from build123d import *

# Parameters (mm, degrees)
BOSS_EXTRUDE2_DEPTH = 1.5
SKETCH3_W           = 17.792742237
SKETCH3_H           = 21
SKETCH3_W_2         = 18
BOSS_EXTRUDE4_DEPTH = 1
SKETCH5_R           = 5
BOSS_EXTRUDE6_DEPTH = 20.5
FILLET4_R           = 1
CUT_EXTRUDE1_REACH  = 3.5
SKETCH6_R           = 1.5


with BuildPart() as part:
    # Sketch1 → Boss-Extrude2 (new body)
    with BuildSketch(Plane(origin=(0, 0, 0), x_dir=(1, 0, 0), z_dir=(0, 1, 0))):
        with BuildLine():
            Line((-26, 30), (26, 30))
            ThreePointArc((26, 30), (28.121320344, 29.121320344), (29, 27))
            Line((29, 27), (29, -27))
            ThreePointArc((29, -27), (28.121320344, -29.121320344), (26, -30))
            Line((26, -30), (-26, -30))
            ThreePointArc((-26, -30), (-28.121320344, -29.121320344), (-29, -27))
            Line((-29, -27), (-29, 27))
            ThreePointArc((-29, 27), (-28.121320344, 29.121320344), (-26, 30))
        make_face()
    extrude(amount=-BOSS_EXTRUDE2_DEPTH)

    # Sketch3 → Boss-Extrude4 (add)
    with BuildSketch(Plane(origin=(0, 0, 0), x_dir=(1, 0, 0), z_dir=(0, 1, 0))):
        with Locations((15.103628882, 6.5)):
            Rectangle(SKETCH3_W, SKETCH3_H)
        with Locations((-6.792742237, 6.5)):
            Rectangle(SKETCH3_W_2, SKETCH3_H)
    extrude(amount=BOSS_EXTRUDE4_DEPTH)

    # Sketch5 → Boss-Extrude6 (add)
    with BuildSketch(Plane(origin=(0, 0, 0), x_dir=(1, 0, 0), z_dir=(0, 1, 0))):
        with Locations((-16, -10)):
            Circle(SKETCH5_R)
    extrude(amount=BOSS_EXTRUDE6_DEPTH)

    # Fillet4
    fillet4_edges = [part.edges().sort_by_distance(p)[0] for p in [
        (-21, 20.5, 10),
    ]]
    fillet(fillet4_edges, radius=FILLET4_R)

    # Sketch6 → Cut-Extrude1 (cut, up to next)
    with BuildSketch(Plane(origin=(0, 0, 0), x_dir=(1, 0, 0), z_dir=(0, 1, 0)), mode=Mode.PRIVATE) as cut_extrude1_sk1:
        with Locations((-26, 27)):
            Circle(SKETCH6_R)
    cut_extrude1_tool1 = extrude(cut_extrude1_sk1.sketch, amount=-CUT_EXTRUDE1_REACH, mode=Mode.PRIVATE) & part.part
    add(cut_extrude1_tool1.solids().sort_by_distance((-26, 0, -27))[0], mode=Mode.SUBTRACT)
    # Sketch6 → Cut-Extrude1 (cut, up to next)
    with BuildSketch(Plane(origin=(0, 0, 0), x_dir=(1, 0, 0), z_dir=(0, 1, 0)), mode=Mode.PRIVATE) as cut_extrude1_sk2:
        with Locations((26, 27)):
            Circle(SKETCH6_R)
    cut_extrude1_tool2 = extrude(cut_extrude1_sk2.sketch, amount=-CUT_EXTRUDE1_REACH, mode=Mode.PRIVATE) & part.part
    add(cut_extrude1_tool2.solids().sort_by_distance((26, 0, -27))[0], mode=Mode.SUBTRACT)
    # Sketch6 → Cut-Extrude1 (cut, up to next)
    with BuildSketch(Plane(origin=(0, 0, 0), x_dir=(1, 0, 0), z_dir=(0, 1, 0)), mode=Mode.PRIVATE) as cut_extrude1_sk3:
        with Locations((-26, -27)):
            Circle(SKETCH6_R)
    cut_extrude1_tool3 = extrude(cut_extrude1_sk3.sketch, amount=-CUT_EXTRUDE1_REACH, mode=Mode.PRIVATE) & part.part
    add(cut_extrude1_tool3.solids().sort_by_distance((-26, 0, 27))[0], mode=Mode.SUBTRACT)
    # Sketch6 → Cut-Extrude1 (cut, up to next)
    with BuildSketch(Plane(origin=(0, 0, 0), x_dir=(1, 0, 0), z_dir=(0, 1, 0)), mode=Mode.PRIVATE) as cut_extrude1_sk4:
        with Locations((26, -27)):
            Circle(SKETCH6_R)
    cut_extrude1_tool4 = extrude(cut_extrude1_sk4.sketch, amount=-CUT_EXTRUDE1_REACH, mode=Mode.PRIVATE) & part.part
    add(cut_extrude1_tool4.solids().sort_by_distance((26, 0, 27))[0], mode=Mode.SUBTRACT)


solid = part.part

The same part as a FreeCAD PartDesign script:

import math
import FreeCAD as App
import Part
import Sketcher

V = App.Vector
Q = App.Units.Quantity


def edges_at(feature, points):
    """Names of the edges that pass closest to the given points."""
    edges = feature.Shape.Edges
    near = lambda p: min(range(len(edges)), key=lambda i: edges[i].distToShape(Part.Vertex(*p))[0])
    return sorted({f"Edge{near(p) + 1}" for p in points})

doc = App.newDocument("Part")
body = doc.addObject("PartDesign::Body", "Body")

sketch1 = body.newObject("Sketcher::SketchObject", "Sketch")
sketch1.AttachmentSupport = (doc.getObject("XZ_Plane"), [""])
sketch1.MapMode = "FlatFace"
sketch1.addGeometry([
    Part.LineSegment(V(26, -30, 0), V(-26, -30, 0)),
    Part.ArcOfCircle(Part.Circle(V(-26, -27, 0), V(0, 0, 1), 3), math.radians(180), math.radians(270)),
    Part.LineSegment(V(-29, -27, 0), V(-29, 27, 0)),
    Part.ArcOfCircle(Part.Circle(V(-26, 27, 0), V(0, 0, 1), 3), math.radians(90), math.radians(180)),
    Part.LineSegment(V(-26, 30, 0), V(26, 30, 0)),
    Part.ArcOfCircle(Part.Circle(V(26, 27, 0), V(0, 0, 1), 3), math.radians(0), math.radians(90)),
    Part.LineSegment(V(29, 27, 0), V(29, -27, 0)),
    Part.ArcOfCircle(Part.Circle(V(26, -27, 0), V(0, 0, 1), 3), math.radians(-90), math.radians(0)),
], False)
sketch1.addConstraint([
    Sketcher.Constraint("Tangent", 0, 2, 1, 2),
    Sketcher.Constraint("Tangent", 1, 1, 2, 1),
    Sketcher.Constraint("Tangent", 2, 2, 3, 2),
    Sketcher.Constraint("Tangent", 3, 1, 4, 1),
    Sketcher.Constraint("Tangent", 4, 2, 5, 2),
    Sketcher.Constraint("Tangent", 5, 1, 6, 1),
    Sketcher.Constraint("Tangent", 6, 2, 7, 2),
    Sketcher.Constraint("Tangent", 7, 1, 0, 1),
    Sketcher.Constraint("Horizontal", 0),
    Sketcher.Constraint("Vertical", 2),
    Sketcher.Constraint("Horizontal", 4),
    Sketcher.Constraint("Vertical", 6),
    Sketcher.Constraint("Equal", 1, 3),
    Sketcher.Constraint("Equal", 3, 5),
    Sketcher.Constraint("Equal", 5, 7),
    Sketcher.Constraint("Symmetric", 1, 3, 5, 3, -1, 1),
    Sketcher.Constraint("Radius", 1, Q("3 mm")),
    Sketcher.Constraint("DistanceX", 0, 2, 0, 1, Q("52 mm")),
    Sketcher.Constraint("DistanceY", 2, 1, 2, 2, Q("54 mm")),
])
pad1 = body.newObject("PartDesign::Pad", "Pad")
pad1.Profile = sketch1
pad1.Length = 1.5

sketch2 = body.newObject("Sketcher::SketchObject", "Sketch001")
sketch2.AttachmentSupport = (doc.getObject("XZ_Plane"), [""])
sketch2.MapMode = "FlatFace"
sketch2.addGeometry([
    Part.LineSegment(V(6.207258, -17, 0), V(6.207258, 4, 0)),
    Part.LineSegment(V(6.207258, 4, 0), V(24, 4, 0)),
    Part.LineSegment(V(24, 4, 0), V(24, -17, 0)),
    Part.LineSegment(V(24, -17, 0), V(6.207258, -17, 0)),
    Part.LineSegment(V(-15.792742, -17, 0), V(-15.792742, 4, 0)),
    Part.LineSegment(V(-15.792742, 4, 0), V(2.207258, 4, 0)),
    Part.LineSegment(V(2.207258, 4, 0), V(2.207258, -17, 0)),
    Part.LineSegment(V(2.207258, -17, 0), V(-15.792742, -17, 0)),
], False)
sketch2.addConstraint([
    Sketcher.Constraint("Coincident", 0, 2, 1, 1),
    Sketcher.Constraint("Coincident", 1, 2, 2, 1),
    Sketcher.Constraint("Coincident", 2, 2, 3, 1),
    Sketcher.Constraint("Coincident", 3, 2, 0, 1),
    Sketcher.Constraint("Coincident", 4, 2, 5, 1),
    Sketcher.Constraint("Coincident", 5, 2, 6, 1),
    Sketcher.Constraint("Coincident", 6, 2, 7, 1),
    Sketcher.Constraint("Coincident", 7, 2, 4, 1),
    Sketcher.Constraint("Vertical", 0),
    Sketcher.Constraint("Horizontal", 1),
    Sketcher.Constraint("Vertical", 2),
    Sketcher.Constraint("Horizontal", 3),
    Sketcher.Constraint("Vertical", 4),
    Sketcher.Constraint("Horizontal", 5),
    Sketcher.Constraint("Vertical", 6),
    Sketcher.Constraint("Horizontal", 7),
    Sketcher.Constraint("Horizontal", 1, 2, 4, 2),
    Sketcher.Constraint("Horizontal", 3, 2, 6, 2),
    Sketcher.Constraint("DistanceX", 5, 1, 5, 2, Q("18 mm")),
    Sketcher.Constraint("DistanceY", 0, 1, 0, 2, Q("21 mm")),
    Sketcher.Constraint("DistanceY", -1, 1, 0, 2, Q("4 mm")),
    Sketcher.Constraint("DistanceX", -1, 1, 1, 2, Q("24 mm")),
    Sketcher.Constraint("DistanceX", 4, 2, 0, 2, Q("22 mm")),
    Sketcher.Constraint("DistanceX", 1, 1, 1, 2, Q("17.792742 mm")),
])
pad2 = body.newObject("PartDesign::Pad", "Pad001")
pad2.Profile = sketch2
pad2.Length = 1
pad2.Reversed = True

sketch3 = body.newObject("Sketcher::SketchObject", "Sketch002")
sketch3.AttachmentSupport = (doc.getObject("XZ_Plane"), [""])
sketch3.MapMode = "FlatFace"
sketch3.addGeometry(Part.Circle(V(-16, 10, 0), V(0, 0, 1), 5), False)
sketch3.addConstraint([
    Sketcher.Constraint("Diameter", 0, Q("10 mm")),
    Sketcher.Constraint("DistanceX", 0, 3, -1, 1, Q("16 mm")),
    Sketcher.Constraint("DistanceY", -1, 1, 0, 3, Q("10 mm")),
])
pad3 = body.newObject("PartDesign::Pad", "Pad002")
pad3.Profile = sketch3
pad3.Length = 20.5
pad3.Reversed = True
doc.recompute()

fillet = body.newObject("PartDesign::Fillet", "Fillet")
fillet.Base = (pad3, edges_at(pad3, [(-21, 20.5, 10)]))
fillet.Radius = 1

sketch4 = body.newObject("Sketcher::SketchObject", "Sketch003")
sketch4.AttachmentSupport = (doc.getObject("XZ_Plane"), [""])
sketch4.MapMode = "FlatFace"
sketch4.addGeometry(Part.Circle(V(-26, -27, 0), V(0, 0, 1), 1.5), False)
sketch4.addConstraint([
    Sketcher.Constraint("Diameter", 0, Q("3 mm")),
    Sketcher.Constraint("DistanceX", 0, 3, -1, 1, Q("26 mm")),
    Sketcher.Constraint("DistanceY", 0, 3, -1, 1, Q("27 mm")),
])
pocket1 = body.newObject("PartDesign::Pocket", "Pocket")
pocket1.Profile = sketch4
pocket1.Type = "UpToFirst"
pocket1.Reversed = True

sketch5 = body.newObject("Sketcher::SketchObject", "Sketch004")
sketch5.AttachmentSupport = (doc.getObject("XZ_Plane"), [""])
sketch5.MapMode = "FlatFace"
sketch5.addGeometry(Part.Circle(V(26, -27, 0), V(0, 0, 1), 1.5), False)
sketch5.addConstraint([
    Sketcher.Constraint("Diameter", 0, Q("3 mm")),
    Sketcher.Constraint("DistanceX", -1, 1, 0, 3, Q("26 mm")),
    Sketcher.Constraint("DistanceY", 0, 3, -1, 1, Q("27 mm")),
])
pocket2 = body.newObject("PartDesign::Pocket", "Pocket001")
pocket2.Profile = sketch5
pocket2.Type = "UpToFirst"
pocket2.Reversed = True

sketch6 = body.newObject("Sketcher::SketchObject", "Sketch005")
sketch6.AttachmentSupport = (doc.getObject("XZ_Plane"), [""])
sketch6.MapMode = "FlatFace"
sketch6.addGeometry(Part.Circle(V(-26, 27, 0), V(0, 0, 1), 1.5), False)
sketch6.addConstraint([
    Sketcher.Constraint("Diameter", 0, Q("3 mm")),
    Sketcher.Constraint("DistanceX", 0, 3, -1, 1, Q("26 mm")),
    Sketcher.Constraint("DistanceY", -1, 1, 0, 3, Q("27 mm")),
])
pocket3 = body.newObject("PartDesign::Pocket", "Pocket002")
pocket3.Profile = sketch6
pocket3.Type = "UpToFirst"
pocket3.Reversed = True

sketch7 = body.newObject("Sketcher::SketchObject", "Sketch006")
sketch7.AttachmentSupport = (doc.getObject("XZ_Plane"), [""])
sketch7.MapMode = "FlatFace"
sketch7.addGeometry(Part.Circle(V(26, 27, 0), V(0, 0, 1), 1.5), False)
sketch7.addConstraint([
    Sketcher.Constraint("Diameter", 0, Q("3 mm")),
    Sketcher.Constraint("DistanceX", -1, 1, 0, 3, Q("26 mm")),
    Sketcher.Constraint("DistanceY", -1, 1, 0, 3, Q("27 mm")),
])
pocket4 = body.newObject("PartDesign::Pocket", "Pocket003")
pocket4.Profile = sketch7
pocket4.Type = "UpToFirst"
pocket4.Reversed = True

doc.recompute()
